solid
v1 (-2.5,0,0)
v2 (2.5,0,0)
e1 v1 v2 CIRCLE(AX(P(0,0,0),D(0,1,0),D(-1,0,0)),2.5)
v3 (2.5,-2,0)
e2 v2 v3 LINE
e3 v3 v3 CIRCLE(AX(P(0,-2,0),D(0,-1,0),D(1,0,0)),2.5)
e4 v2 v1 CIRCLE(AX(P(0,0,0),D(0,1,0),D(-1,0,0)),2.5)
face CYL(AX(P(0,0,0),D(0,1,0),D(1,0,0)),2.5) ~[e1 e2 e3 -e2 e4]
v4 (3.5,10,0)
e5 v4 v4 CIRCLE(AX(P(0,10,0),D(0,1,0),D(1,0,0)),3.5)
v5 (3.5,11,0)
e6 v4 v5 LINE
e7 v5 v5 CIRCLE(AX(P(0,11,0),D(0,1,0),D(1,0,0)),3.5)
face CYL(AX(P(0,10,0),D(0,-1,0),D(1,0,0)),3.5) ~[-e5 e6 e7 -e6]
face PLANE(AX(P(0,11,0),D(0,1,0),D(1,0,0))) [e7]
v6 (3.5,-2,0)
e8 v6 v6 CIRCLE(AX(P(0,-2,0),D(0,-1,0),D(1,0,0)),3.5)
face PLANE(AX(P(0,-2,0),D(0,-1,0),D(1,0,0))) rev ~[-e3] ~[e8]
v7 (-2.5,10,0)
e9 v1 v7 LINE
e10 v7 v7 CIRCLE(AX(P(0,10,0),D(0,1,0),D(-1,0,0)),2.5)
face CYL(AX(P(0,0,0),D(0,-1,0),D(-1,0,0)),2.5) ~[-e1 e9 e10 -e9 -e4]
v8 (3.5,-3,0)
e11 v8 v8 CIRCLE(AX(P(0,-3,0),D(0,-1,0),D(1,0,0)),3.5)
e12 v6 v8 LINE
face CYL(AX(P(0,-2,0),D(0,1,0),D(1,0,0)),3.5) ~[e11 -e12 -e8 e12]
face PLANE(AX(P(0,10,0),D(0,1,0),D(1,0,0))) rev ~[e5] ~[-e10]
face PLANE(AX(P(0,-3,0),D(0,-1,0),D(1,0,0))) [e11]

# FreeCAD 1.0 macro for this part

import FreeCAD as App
import Part
import Sketcher
Q = App.Units.Quantity

doc = App.newDocument("Part")
body = doc.addObject("PartDesign::Body", "Body")

# Sketch on XZ plane
sketch1 = body.newObject("Sketcher::SketchObject", "Sketch")
sketch1.AttachmentSupport = (doc.getObject("XZ_Plane"), [""])
sketch1.MapMode = "FlatFace"
sketch1.addGeometry(Part.Circle(App.Vector(0, 0, 0), App.Vector(0, 0, 1), 2.5), False)
sketch1.addConstraint(Sketcher.Constraint("Coincident", 0, 3, -1, 1))
sketch1.addConstraint(Sketcher.Constraint("Diameter", 0, Q("5 mm")))
pad1 = body.newObject("PartDesign::Pad", "Pad")
pad1.Profile = sketch1
pad1.Length = 10
pad1.Reversed = True

# Sketch on XZ plane
sketch2 = body.newObject("Sketcher::SketchObject", "Sketch001")
sketch2.AttachmentSupport = (doc.getObject("XZ_Plane"), [""])
sketch2.MapMode = "FlatFace"
sketch2.AttachmentOffset = App.Placement(App.Vector(0, 0, -10), App.Rotation())
sketch2.addGeometry(Part.Circle(App.Vector(0, 0, 0), App.Vector(0, 0, 1), 3.5), False)
sketch2.addConstraint(Sketcher.Constraint("Coincident", 0, 3, -1, 1))
sketch2.addConstraint(Sketcher.Constraint("Diameter", 0, Q("7 mm")))
pad2 = body.newObject("PartDesign::Pad", "Pad001")
pad2.Profile = sketch2
pad2.Length = 1
pad2.Reversed = True

# Sketch on XZ plane
sketch3 = body.newObject("Sketcher::SketchObject", "Sketch002")
sketch3.AttachmentSupport = (doc.getObject("XZ_Plane"), [""])
sketch3.MapMode = "FlatFace"
sketch3.addGeometry(Part.Circle(App.Vector(0, 0, 0), App.Vector(0, 0, 1), 2.5), False)
sketch3.addConstraint(Sketcher.Constraint("Coincident", 0, 3, -1, 1))
sketch3.addConstraint(Sketcher.Constraint("Diameter", 0, Q("5 mm")))
pad3 = body.newObject("PartDesign::Pad", "Pad002")
pad3.Profile = sketch3
pad3.Length = 2

# Sketch on XZ plane
sketch4 = body.newObject("Sketcher::SketchObject", "Sketch003")
sketch4.AttachmentSupport = (doc.getObject("XZ_Plane"), [""])
sketch4.MapMode = "FlatFace"
sketch4.AttachmentOffset = App.Placement(App.Vector(0, 0, 2), App.Rotation())
sketch4.addGeometry(Part.Circle(App.Vector(0, 0, 0), App.Vector(0, 0, 1), 3.5), False)
sketch4.addConstraint(Sketcher.Constraint("Coincident", 0, 3, -1, 1))
sketch4.addConstraint(Sketcher.Constraint("Diameter", 0, Q("7 mm")))
pad4 = body.newObject("PartDesign::Pad", "Pad003")
pad4.Profile = sketch4
pad4.Length = 1

doc.recompute()
